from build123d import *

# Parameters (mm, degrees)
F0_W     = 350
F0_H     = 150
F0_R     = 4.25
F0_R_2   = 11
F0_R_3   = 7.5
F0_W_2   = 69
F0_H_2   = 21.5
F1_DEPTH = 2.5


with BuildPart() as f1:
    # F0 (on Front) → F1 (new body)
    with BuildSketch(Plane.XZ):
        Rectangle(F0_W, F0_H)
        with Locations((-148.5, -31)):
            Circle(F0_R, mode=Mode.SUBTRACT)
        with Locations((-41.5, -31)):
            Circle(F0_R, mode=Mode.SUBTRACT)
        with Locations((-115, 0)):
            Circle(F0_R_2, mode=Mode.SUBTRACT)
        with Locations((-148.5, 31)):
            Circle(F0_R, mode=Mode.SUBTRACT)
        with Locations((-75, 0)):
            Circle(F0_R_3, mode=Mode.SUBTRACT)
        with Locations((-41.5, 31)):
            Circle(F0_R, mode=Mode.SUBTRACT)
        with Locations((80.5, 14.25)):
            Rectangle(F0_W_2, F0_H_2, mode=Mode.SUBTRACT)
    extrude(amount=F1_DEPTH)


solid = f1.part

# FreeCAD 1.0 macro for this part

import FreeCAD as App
import Part
import Sketcher
Q = App.Units.Quantity


def add_polygon(sketch, points):
    """Adds a closed chain of lines whose ends are joined by coincident constraints."""
    first, n = sketch.GeometryCount, len(points)
    for a, b in zip(points, points[1:] + points[:1]):
        sketch.addGeometry(Part.LineSegment(App.Vector(*a, 0), App.Vector(*b, 0)), False)
    for i in range(n):
        sketch.addConstraint(Sketcher.Constraint("Coincident", first + i, 2, first + (i + 1) % n, 1))

doc = App.newDocument("Part")
params = doc.addObject("Spreadsheet::Sheet", "Params")
for row, (alias, value) in enumerate([
    ("sketch1_diameter", "22 mm"),
    ("sketch1_diameter2", "15 mm"),
    ("sketch1_diameter3", "8.5 mm"),
    ("sketch1_width", "350 mm"),
    ("sketch1_width2", "69 mm"),
    ("pad1_length", "2.5 mm"),
], start=1):
    params.set(f"A{row}", alias)
    params.set(f"B{row}", "=" + value)
    params.setAlias(f"B{row}", alias)

body = doc.addObject("PartDesign::Body", "Body")

sketch1 = body.newObject("Sketcher::SketchObject", "Sketch")
sketch1.AttachmentSupport = (doc.getObject("XZ_Plane"), [""])
sketch1.MapMode = "FlatFace"
add_polygon(sketch1, [(-175, 75), (-175, -75), (175, -75), (175, 75)])
sketch1.addGeometry(Part.Circle(App.Vector(-148.5, -31, 0), App.Vector(0, 0, 1), 4.2), False)
sketch1.addGeometry(Part.Circle(App.Vector(-41.5, -31, 0), App.Vector(0, 0, 1), 4.2), False)
sketch1.addGeometry(Part.Circle(App.Vector(-115, 0, 0), App.Vector(0, 0, 1), 11), False)
sketch1.addGeometry(Part.Circle(App.Vector(-75, 0, 0), App.Vector(0, 0, 1), 7.5), False)
sketch1.addGeometry(Part.Circle(App.Vector(-148.5, 31, 0), App.Vector(0, 0, 1), 4.2), False)
sketch1.addGeometry(Part.Circle(App.Vector(-41.5, 31, 0), App.Vector(0, 0, 1), 4.2), False)
add_polygon(sketch1, [(115, 3.5), (46, 3.5), (46, 25), (115, 25)])
sketch1.addConstraint(Sketcher.Constraint("Vertical", 0))
sketch1.addConstraint(Sketcher.Constraint("Horizontal", 1))
sketch1.addConstraint(Sketcher.Constraint("Vertical", 2))
sketch1.addConstraint(Sketcher.Constraint("Horizontal", 3))
sketch1.addConstraint(Sketcher.Constraint("Horizontal", 10))
sketch1.addConstraint(Sketcher.Constraint("Vertical", 11))
sketch1.addConstraint(Sketcher.Constraint("Horizontal", 12))
sketch1.addConstraint(Sketcher.Constraint("Vertical", 13))
sketch1.addConstraint(Sketcher.Constraint("Equal", 4, 5))
sketch1.addConstraint(Sketcher.Constraint("Equal", 5, 8))
sketch1.addConstraint(Sketcher.Constraint("Equal", 8, 9))
sketch1.addConstraint(Sketcher.Constraint("Symmetric", 0, 2, 2, 2, -1, 1))
sketch1.addConstraint(Sketcher.Constraint("Symmetric", 4, 3, 8, 3, -1))
sketch1.addConstraint(Sketcher.Constraint("Symmetric", 5, 3, 9, 3, -1))
sketch1.addConstraint(Sketcher.Constraint("PointOnObject", 6, 3, -1))
sketch1.addConstraint(Sketcher.Constraint("PointOnObject", 7, 3, -1))
sketch1.addConstraint(Sketcher.Constraint("Horizontal", 4, 3, 5, 3))
sketch1.addConstraint(Sketcher.Constraint("Diameter", 6, Q("22 mm")))
sketch1.addConstraint(Sketcher.Constraint("Diameter", 7, Q("15 mm")))
sketch1.addConstraint(Sketcher.Constraint("Diameter", 4, Q("8.5 mm")))
sketch1.addConstraint(Sketcher.Constraint("DistanceX", 1, 1, 1, 2, Q("350 mm")))
sketch1.addConstraint(Sketcher.Constraint("DistanceX", 10, 2, 10, 1, Q("69 mm")))
sketch1.addConstraint(Sketcher.Constraint("DistanceY", 0, 2, 0, 1, Q("150 mm")))
sketch1.addConstraint(Sketcher.Constraint("DistanceY", 11, 1, 11, 2, Q("21.5 mm")))
sketch1.addConstraint(Sketcher.Constraint("DistanceY", 4, 3, -1, 1, Q("31 mm")))
sketch1.addConstraint(Sketcher.Constraint("DistanceX", 6, 3, -1, 1, Q("115 mm")))
sketch1.addConstraint(Sketcher.Constraint("DistanceX", 7, 3, -1, 1, Q("75 mm")))
sketch1.addConstraint(Sketcher.Constraint("DistanceX", -1, 1, 10, 2, Q("46 mm")))
sketch1.addConstraint(Sketcher.Constraint("DistanceY", -1, 1, 11, 2, Q("25 mm")))
sketch1.addConstraint(Sketcher.Constraint("DistanceX", 4, 3, 5, 3, Q("107 mm")))
sketch1.addConstraint(Sketcher.Constraint("DistanceX", 4, 3, -1, 1, Q("148.5 mm")))
sketch1.setExpression("Constraints[25]", "Params.sketch1_diameter")
sketch1.setExpression("Constraints[26]", "Params.sketch1_diameter2")
sketch1.setExpression("Constraints[27]", "Params.sketch1_diameter3")
sketch1.setExpression("Constraints[28]", "Params.sketch1_width")
sketch1.setExpression("Constraints[29]", "Params.sketch1_width2")
pad1 = body.newObject("PartDesign::Pad", "Pad")
pad1.Profile = sketch1
pad1.setExpression("Length", "Params.pad1_length")

doc.recompute()
